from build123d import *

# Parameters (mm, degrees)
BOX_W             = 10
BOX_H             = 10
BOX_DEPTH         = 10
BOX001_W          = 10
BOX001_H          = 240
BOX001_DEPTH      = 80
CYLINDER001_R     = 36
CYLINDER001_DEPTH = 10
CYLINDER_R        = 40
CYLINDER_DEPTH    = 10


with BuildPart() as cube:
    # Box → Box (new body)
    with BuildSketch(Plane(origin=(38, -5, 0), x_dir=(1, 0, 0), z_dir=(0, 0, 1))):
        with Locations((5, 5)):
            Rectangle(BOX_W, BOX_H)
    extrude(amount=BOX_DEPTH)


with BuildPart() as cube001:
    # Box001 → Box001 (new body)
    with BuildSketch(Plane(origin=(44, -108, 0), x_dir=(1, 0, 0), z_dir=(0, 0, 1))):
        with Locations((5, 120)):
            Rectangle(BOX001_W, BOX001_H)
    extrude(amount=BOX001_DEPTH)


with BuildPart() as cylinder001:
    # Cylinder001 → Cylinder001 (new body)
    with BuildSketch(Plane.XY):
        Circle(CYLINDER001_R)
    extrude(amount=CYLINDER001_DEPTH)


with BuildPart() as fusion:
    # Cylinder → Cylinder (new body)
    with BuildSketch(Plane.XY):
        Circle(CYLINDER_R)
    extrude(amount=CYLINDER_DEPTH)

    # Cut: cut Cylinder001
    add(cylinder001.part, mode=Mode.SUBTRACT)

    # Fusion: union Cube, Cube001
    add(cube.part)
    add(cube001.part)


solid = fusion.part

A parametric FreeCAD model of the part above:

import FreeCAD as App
import Part
import Sketcher

V = App.Vector
Q = App.Units.Quantity

doc = App.newDocument("Part")
body = doc.addObject("PartDesign::Body", "Body")

# Sketch on XY plane
sketch1 = doc.addObject("Sketcher::SketchObject", "Sketch")
body.addObject(sketch1)
sketch1.AttachmentSupport = (doc.XY_Plane, [""])
sketch1.MapMode = "FlatFace"
sketch1.addGeometry([
    Part.LineSegment(V(38, 5, 0), V(38, -5, 0)),
    Part.LineSegment(V(38, -5, 0), V(48, -5, 0)),
    Part.LineSegment(V(48, -5, 0), V(48, 5, 0)),
    Part.LineSegment(V(48, 5, 0), V(38, 5, 0)),
], False)
sketch1.addConstraint([
    Sketcher.Constraint("Coincident", 0, 2, 1, 1),
    Sketcher.Constraint("Coincident", 1, 2, 2, 1),
    Sketcher.Constraint("Coincident", 2, 2, 3, 1),
    Sketcher.Constraint("Coincident", 3, 2, 0, 1),
    Sketcher.Constraint("Vertical", 0),
    Sketcher.Constraint("Horizontal", 1),
    Sketcher.Constraint("Vertical", 2),
    Sketcher.Constraint("Horizontal", 3),
    Sketcher.Constraint("Equal", 3, 0),
    Sketcher.Constraint("DistanceX", 1, 1, 1, 2, Q("10 mm")),
    Sketcher.Constraint("DistanceX", -1, 1, 0, 2, Q("38 mm")),
    Sketcher.Constraint("DistanceY", 0, 2, -1, 1, Q("5 mm")),
])
pad1 = doc.addObject("PartDesign::Pad", "Pad")
body.addObject(pad1)
pad1.Profile = sketch1
pad1.Length = 10
body2 = doc.addObject("PartDesign::Body", "Body001")

# Sketch on XY plane
sketch2 = doc.addObject("Sketcher::SketchObject", "Sketch001")
body2.addObject(sketch2)
sketch2.AttachmentSupport = (doc.getObject("XY_Plane001"), [""])
sketch2.MapMode = "FlatFace"
sketch2.addGeometry([
    Part.LineSegment(V(44, 132, 0), V(44, -108, 0)),
    Part.LineSegment(V(44, -108, 0), V(54, -108, 0)),
    Part.LineSegment(V(54, -108, 0), V(54, 132, 0)),
    Part.LineSegment(V(54, 132, 0), V(44, 132, 0)),
], False)
sketch2.addConstraint([
    Sketcher.Constraint("Coincident", 0, 2, 1, 1),
    Sketcher.Constraint("Coincident", 1, 2, 2, 1),
    Sketcher.Constraint("Coincident", 2, 2, 3, 1),
    Sketcher.Constraint("Coincident", 3, 2, 0, 1),
    Sketcher.Constraint("Vertical", 0),
    Sketcher.Constraint("Horizontal", 1),
    Sketcher.Constraint("Vertical", 2),
    Sketcher.Constraint("Horizontal", 3),
    Sketcher.Constraint("DistanceX", 1, 1, 1, 2, Q("10 mm")),
    Sketcher.Constraint("DistanceY", 0, 2, 0, 1, Q("240 mm")),
    Sketcher.Constraint("DistanceX", -1, 1, 0, 2, Q("44 mm")),
    Sketcher.Constraint("DistanceY", 0, 2, -1, 1, Q("108 mm")),
])
pad2 = doc.addObject("PartDesign::Pad", "Pad001")
body2.addObject(pad2)
pad2.Profile = sketch2
pad2.Length = 80
body3 = doc.addObject("PartDesign::Body", "Body002")

# Sketch on XY plane
sketch3 = doc.addObject("Sketcher::SketchObject", "Sketch002")
body3.addObject(sketch3)
sketch3.AttachmentSupport = (doc.getObject("XY_Plane002"), [""])
sketch3.MapMode = "FlatFace"
sketch3.addGeometry(Part.Circle(V(0, 0, 0), V(0, 0, 1), 36), False)
sketch3.addConstraint([
    Sketcher.Constraint("Coincident", 0, 3, -1, 1),
    Sketcher.Constraint("Diameter", 0, Q("72 mm")),
])
pad3 = doc.addObject("PartDesign::Pad", "Pad002")
body3.addObject(pad3)
pad3.Profile = sketch3
pad3.Length = 10
body4 = doc.addObject("PartDesign::Body", "Body003")

# Sketch on XY plane
sketch4 = doc.addObject("Sketcher::SketchObject", "Sketch003")
body4.addObject(sketch4)
sketch4.AttachmentSupport = (doc.getObject("XY_Plane003"), [""])
sketch4.MapMode = "FlatFace"
sketch4.addGeometry(Part.Circle(V(0, 0, 0), V(0, 0, 1), 40), False)
sketch4.addConstraint([
    Sketcher.Constraint("Coincident", 0, 3, -1, 1),
    Sketcher.Constraint("Diameter", 0, Q("80 mm")),
])
pad4 = doc.addObject("PartDesign::Pad", "Pad003")
body4.addObject(pad4)
pad4.Profile = sketch4
pad4.Length = 10
doc.recompute()

boolean = doc.addObject("PartDesign::Boolean", "Boolean")
body4.addObject(boolean)
boolean.Type = "Cut"
boolean.addObjects([body3])
doc.recompute()

boolean2 = doc.addObject("PartDesign::Boolean", "Boolean001")
body4.addObject(boolean2)
boolean2.Type = "Fuse"
boolean2.addObjects([body])
doc.recompute()

boolean3 = doc.addObject("PartDesign::Boolean", "Boolean002")
body4.addObject(boolean3)
boolean3.Type = "Fuse"
boolean3.addObjects([body2])

doc.recompute()
